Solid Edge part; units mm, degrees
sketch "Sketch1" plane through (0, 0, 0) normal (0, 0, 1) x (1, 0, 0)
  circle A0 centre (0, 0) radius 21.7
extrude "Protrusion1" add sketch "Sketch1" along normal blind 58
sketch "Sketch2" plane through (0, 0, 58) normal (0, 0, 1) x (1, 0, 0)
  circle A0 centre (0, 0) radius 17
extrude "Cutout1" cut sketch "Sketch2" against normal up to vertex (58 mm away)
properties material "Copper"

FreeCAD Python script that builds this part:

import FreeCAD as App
import Part
import Sketcher
from FreeCAD import Vector

doc = App.newDocument("Part")
params = doc.addObject("Spreadsheet::Sheet", "Params")
for row, (alias, value) in enumerate([
    ("sketch1_diameter", "43.4 mm"),
    ("pad1_length", "58 mm"),
    ("sketch2_diameter", "34 mm"),
    ("pocket1_length", "58 mm"),
], start=1):
    params.set(f"A{row}", alias)
    params.set(f"B{row}", "=" + value)
    params.setAlias(f"B{row}", alias)

body = doc.addObject("PartDesign::Body", "Body")

sketch1 = body.newObject("Sketcher::SketchObject", "Sketch")
sketch1.AttachmentSupport = (doc.getObject("XY_Plane"), [""])
sketch1.MapMode = "FlatFace"
sketch1.addGeometry(Part.Circle(Vector(0, 0, 0), Vector(0, 0, 1), 21.7), False)
sketch1.addConstraint([
    Sketcher.Constraint("Coincident", 0, 3, -1, 1),
    Sketcher.Constraint("Diameter", 0, 43.4),
])
sketch1.setExpression("Constraints[1]", "Params.sketch1_diameter")
pad1 = body.newObject("PartDesign::Pad", "Pad")
pad1.Profile = sketch1
pad1.setExpression("Length", "Params.pad1_length")

sketch2 = body.newObject("Sketcher::SketchObject", "Sketch001")
sketch2.AttachmentSupport = (doc.getObject("XY_Plane"), [""])
sketch2.MapMode = "FlatFace"
sketch2.AttachmentOffset = App.Placement(Vector(0, 0, 58), App.Rotation())
sketch2.addGeometry(Part.Circle(Vector(0, 0, 0), Vector(0, 0, 1), 17), False)
sketch2.addConstraint([
    Sketcher.Constraint("Coincident", 0, 3, -1, 1),
    Sketcher.Constraint("Diameter", 0, 34.0),
])
sketch2.setExpression("Constraints[1]", "Params.sketch2_diameter")
pocket1 = body.newObject("PartDesign::Pocket", "Pocket")
pocket1.Profile = sketch2
pocket1.setExpression("Length", "Params.pocket1_length")

doc.recompute()
